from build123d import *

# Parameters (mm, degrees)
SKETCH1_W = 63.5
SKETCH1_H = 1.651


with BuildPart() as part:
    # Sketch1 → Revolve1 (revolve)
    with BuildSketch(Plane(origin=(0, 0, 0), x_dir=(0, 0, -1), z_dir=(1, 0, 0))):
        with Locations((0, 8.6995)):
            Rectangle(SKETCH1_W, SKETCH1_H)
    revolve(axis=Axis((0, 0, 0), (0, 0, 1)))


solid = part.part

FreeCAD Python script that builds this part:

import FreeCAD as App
import Part
import Sketcher
Q = App.Units.Quantity

doc = App.newDocument("Part")
body = doc.addObject("PartDesign::Body", "Body")

# Sketch on YZ plane
sketch1 = body.newObject("Sketcher::SketchObject", "Sketch")
sketch1.AttachmentSupport = (doc.getObject("YZ_Plane"), [""])
sketch1.MapMode = "FlatFace"
sketch1.addGeometry(Part.LineSegment(App.Vector(9.5, 31.8, 0), App.Vector(7.9, 31.8, 0)), False)
sketch1.addGeometry(Part.LineSegment(App.Vector(7.9, 31.8, 0), App.Vector(7.9, -31.8, 0)), False)
sketch1.addGeometry(Part.LineSegment(App.Vector(7.9, -31.8, 0), App.Vector(9.5, -31.8, 0)), False)
sketch1.addGeometry(Part.LineSegment(App.Vector(9.5, -31.8, 0), App.Vector(9.5, 31.8, 0)), False)
sketch1.addConstraint(Sketcher.Constraint("Coincident", 0, 2, 1, 1))
sketch1.addConstraint(Sketcher.Constraint("Coincident", 1, 2, 2, 1))
sketch1.addConstraint(Sketcher.Constraint("Coincident", 2, 2, 3, 1))
sketch1.addConstraint(Sketcher.Constraint("Coincident", 3, 2, 0, 1))
sketch1.addConstraint(Sketcher.Constraint("Horizontal", 0))
sketch1.addConstraint(Sketcher.Constraint("Vertical", 1))
sketch1.addConstraint(Sketcher.Constraint("Horizontal", 2))
sketch1.addConstraint(Sketcher.Constraint("Vertical", 3))
sketch1.addConstraint(Sketcher.Constraint("DistanceY", 1, 2, 1, 1, Q("2.5 in")))
sketch1.addConstraint(Sketcher.Constraint("DistanceX", 0, 2, 0, 1, Q("0.065 in")))
sketch1.addConstraint(Sketcher.Constraint("DistanceX", -1, 1, 0, 2, Q("0.31 in")))
sketch1.addConstraint(Sketcher.Constraint("DistanceY", -1, 1, 0, 2, Q("1.25 in")))
revolution = body.newObject("PartDesign::Revolution", "Revolution")
revolution.Profile = sketch1
revolution.ReferenceAxis = (sketch1, ["V_Axis"])
revolution.Angle = 360

doc.recompute()
